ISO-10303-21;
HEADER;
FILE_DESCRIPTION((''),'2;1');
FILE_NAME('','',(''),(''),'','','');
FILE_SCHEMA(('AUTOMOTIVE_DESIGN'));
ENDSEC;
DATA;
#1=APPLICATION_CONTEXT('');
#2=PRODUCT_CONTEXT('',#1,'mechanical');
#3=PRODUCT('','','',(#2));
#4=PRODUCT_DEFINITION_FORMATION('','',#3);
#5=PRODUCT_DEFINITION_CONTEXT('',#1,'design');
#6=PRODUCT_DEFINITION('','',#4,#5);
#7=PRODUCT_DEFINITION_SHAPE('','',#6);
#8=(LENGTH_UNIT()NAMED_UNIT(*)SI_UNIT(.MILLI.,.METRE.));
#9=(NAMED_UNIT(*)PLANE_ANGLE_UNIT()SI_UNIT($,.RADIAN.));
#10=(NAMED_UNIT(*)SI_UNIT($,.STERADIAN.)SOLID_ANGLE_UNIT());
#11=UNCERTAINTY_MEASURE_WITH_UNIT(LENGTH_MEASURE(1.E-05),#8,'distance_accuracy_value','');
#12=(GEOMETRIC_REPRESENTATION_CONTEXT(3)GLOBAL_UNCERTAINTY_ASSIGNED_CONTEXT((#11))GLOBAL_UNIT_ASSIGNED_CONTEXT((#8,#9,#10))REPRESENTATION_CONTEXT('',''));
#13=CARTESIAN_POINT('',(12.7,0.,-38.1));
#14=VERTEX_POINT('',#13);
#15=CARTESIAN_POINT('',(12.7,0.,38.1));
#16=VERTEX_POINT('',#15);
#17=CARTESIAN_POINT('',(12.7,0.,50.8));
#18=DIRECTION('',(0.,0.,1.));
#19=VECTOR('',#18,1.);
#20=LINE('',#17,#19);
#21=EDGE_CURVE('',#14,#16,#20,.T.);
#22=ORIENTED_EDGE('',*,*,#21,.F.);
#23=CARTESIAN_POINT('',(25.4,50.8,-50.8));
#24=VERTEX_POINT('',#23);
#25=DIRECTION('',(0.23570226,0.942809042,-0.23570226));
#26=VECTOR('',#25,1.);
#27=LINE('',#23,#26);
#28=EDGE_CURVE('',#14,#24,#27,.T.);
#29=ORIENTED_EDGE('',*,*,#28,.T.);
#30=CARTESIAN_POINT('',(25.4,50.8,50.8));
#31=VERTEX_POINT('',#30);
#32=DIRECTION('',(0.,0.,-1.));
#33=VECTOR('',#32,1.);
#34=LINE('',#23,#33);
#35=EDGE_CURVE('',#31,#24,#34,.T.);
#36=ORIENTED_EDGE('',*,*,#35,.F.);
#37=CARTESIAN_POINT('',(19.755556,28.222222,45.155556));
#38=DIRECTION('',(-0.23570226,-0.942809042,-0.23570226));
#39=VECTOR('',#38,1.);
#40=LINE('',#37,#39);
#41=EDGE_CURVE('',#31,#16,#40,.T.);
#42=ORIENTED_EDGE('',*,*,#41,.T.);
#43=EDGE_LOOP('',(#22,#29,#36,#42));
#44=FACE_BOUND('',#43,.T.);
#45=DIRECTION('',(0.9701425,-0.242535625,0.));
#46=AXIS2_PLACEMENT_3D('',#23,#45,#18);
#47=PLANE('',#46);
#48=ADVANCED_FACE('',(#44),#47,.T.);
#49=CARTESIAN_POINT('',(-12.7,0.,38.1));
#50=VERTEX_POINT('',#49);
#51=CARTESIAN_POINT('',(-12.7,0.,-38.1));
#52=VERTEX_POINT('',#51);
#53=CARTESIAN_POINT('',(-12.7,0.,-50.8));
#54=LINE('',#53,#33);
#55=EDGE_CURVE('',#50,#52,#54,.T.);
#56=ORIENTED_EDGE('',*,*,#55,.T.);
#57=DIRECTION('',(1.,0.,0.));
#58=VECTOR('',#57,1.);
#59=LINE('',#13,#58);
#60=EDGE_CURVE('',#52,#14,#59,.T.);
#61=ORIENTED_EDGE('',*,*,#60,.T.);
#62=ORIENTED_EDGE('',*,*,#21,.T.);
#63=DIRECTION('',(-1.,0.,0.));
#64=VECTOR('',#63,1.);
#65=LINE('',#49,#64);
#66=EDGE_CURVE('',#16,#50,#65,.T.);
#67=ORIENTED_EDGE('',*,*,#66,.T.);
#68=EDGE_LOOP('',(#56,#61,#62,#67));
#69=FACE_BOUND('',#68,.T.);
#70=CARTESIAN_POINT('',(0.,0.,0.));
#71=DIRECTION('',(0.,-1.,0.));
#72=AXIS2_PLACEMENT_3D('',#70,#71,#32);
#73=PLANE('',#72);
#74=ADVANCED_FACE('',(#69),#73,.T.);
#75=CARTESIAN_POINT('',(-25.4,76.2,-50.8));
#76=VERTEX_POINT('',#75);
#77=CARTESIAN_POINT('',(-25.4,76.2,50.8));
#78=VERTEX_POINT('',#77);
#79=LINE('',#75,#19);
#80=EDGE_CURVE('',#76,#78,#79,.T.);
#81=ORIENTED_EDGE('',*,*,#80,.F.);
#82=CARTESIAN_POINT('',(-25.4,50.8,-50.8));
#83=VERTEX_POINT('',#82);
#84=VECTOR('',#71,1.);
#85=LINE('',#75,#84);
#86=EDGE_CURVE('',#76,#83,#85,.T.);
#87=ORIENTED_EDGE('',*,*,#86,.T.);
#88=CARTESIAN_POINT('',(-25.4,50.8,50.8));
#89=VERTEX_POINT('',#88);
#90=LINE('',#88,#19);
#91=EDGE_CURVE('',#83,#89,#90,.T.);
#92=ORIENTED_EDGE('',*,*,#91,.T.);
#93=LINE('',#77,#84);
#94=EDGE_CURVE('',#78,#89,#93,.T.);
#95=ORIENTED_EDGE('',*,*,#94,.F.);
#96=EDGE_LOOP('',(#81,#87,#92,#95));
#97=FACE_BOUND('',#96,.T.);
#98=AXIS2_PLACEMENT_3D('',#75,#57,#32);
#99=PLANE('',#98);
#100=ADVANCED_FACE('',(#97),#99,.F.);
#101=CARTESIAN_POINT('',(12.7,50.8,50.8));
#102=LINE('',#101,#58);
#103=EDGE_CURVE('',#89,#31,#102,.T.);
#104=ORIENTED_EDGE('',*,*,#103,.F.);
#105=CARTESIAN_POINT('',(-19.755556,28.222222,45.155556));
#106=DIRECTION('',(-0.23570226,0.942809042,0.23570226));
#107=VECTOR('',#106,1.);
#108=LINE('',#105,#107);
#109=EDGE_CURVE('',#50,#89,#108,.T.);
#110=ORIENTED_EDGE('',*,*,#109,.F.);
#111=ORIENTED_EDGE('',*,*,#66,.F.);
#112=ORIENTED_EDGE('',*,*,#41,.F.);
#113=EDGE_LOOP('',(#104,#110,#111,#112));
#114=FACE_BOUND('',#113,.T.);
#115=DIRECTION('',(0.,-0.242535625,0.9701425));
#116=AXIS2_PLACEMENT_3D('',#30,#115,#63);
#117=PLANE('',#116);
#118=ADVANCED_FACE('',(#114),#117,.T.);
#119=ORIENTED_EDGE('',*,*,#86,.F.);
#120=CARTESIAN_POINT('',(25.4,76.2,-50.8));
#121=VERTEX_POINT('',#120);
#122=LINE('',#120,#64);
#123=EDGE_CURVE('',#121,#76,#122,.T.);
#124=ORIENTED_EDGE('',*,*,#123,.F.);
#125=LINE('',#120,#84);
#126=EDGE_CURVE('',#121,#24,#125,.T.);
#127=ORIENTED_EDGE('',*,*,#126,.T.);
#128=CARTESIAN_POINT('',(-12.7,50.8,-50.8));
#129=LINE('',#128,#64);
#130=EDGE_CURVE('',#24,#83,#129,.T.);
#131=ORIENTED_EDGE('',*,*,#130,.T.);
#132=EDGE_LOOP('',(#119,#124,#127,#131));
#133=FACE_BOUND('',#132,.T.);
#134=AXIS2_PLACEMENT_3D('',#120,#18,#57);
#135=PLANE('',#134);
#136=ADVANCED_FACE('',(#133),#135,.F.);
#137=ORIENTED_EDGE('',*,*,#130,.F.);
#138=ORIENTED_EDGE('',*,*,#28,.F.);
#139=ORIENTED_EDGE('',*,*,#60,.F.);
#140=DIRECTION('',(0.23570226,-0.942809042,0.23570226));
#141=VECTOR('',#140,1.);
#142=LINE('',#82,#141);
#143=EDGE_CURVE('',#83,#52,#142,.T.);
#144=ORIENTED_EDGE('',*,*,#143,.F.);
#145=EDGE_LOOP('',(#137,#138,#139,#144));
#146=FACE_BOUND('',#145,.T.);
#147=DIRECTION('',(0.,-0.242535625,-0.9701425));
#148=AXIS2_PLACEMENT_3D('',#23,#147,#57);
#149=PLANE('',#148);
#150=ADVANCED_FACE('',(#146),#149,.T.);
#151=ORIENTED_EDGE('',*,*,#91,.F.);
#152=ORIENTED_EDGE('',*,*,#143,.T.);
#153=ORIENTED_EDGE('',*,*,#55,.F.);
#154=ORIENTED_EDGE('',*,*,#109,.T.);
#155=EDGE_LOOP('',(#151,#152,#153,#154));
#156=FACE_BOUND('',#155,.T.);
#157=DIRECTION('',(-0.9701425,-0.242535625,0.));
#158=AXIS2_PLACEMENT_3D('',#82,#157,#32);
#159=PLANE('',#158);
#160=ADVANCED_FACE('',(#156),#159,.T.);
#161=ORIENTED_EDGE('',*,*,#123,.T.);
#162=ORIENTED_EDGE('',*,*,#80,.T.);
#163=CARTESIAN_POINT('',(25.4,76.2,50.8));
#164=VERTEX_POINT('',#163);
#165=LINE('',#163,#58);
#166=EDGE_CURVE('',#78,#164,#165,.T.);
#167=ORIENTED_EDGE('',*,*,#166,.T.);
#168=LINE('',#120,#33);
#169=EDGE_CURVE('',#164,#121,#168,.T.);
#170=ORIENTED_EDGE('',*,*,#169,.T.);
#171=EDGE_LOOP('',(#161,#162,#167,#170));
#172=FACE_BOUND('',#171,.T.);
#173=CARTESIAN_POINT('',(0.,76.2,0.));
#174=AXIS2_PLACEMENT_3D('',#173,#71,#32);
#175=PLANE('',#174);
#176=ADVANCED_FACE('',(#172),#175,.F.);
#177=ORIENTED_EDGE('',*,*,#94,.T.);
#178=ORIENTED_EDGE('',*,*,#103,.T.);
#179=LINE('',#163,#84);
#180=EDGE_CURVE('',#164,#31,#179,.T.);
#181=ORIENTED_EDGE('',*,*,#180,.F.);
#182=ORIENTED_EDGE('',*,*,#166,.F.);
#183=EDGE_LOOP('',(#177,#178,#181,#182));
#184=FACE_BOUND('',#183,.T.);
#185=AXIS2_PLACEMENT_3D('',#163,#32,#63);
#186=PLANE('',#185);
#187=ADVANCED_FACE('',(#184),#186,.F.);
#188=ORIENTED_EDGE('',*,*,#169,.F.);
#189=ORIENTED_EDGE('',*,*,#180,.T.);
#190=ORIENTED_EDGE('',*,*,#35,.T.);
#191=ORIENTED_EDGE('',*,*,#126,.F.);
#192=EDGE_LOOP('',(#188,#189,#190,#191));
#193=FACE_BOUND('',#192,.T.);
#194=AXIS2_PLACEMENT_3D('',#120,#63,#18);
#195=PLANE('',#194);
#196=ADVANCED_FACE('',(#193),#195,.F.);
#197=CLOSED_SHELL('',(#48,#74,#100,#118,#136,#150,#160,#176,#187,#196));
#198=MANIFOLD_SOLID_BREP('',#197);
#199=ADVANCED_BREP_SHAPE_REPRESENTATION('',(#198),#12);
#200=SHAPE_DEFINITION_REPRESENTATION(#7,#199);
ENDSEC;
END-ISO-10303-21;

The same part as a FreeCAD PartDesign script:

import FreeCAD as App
import Part
import Sketcher

V = App.Vector
Q = App.Units.Quantity


def edges_at(feature, points):
    """Names of the edges that pass closest to the given points."""
    edges = feature.Shape.Edges
    near = lambda p: min(range(len(edges)), key=lambda i: edges[i].distToShape(Part.Vertex(*p))[0])
    return sorted({f"Edge{near(p) + 1}" for p in points})


def add_polygon(sketch, points):
    """Adds a closed chain of lines whose ends are joined by coincident constraints."""
    first, n = sketch.GeometryCount, len(points)
    for a, b in zip(points, points[1:] + points[:1]):
        sketch.addGeometry(Part.LineSegment(App.Vector(*a, 0), App.Vector(*b, 0)), False)
    for i in range(n):
        sketch.addConstraint(Sketcher.Constraint("Coincident", first + i, 2, first + (i + 1) % n, 1))

doc = App.newDocument("Part")
body = doc.addObject("PartDesign::Body", "Body")

# Sketch on XZ plane
sketch1 = doc.addObject("Sketcher::SketchObject", "Sketch")
body.addObject(sketch1)
sketch1.AttachmentSupport = (doc.XZ_Plane, [""])
sketch1.MapMode = "FlatFace"
add_polygon(sketch1, [(-25, -51), (-25, 51), (25, 51), (25, -51)])  # lines 0-3
sketch1.addConstraint(Sketcher.Constraint("Vertical", 0))
sketch1.addConstraint(Sketcher.Constraint("Horizontal", 1))
sketch1.addConstraint(Sketcher.Constraint("Vertical", 2))
sketch1.addConstraint(Sketcher.Constraint("Horizontal", 3))
sketch1.addConstraint(Sketcher.Constraint("Symmetric", 0, 2, 2, 2, -1, 1))
sketch1.addConstraint(Sketcher.Constraint("DistanceX", 1, 1, 1, 2, Q("2 in")))
sketch1.addConstraint(Sketcher.Constraint("DistanceY", 0, 1, 0, 2, Q("4 in")))
pad1 = doc.addObject("PartDesign::Pad", "Pad")
body.addObject(pad1)
pad1.Profile = sketch1
pad1.Length = Q("3 in")
pad1.Reversed = True
doc.recompute()

chamfer = doc.addObject("PartDesign::Chamfer", "Chamfer")
body.addObject(chamfer)
chamfer.Base = (pad1, edges_at(pad1, [(25.4, 0, 0)]))
chamfer.ChamferType = "Two distances"
chamfer.Size = Q("0.5 in")
chamfer.Size2 = Q("2 in")
chamfer.FlipDirection = True
doc.recompute()

chamfer2 = doc.addObject("PartDesign::Chamfer", "Chamfer001")
body.addObject(chamfer2)
chamfer2.Base = (chamfer, edges_at(chamfer, [(-25.4, 0, 0)]))
chamfer2.ChamferType = "Two distances"
chamfer2.Size = Q("0.5 in")
chamfer2.Size2 = Q("2 in")
doc.recompute()

chamfer3 = doc.addObject("PartDesign::Chamfer", "Chamfer002")
body.addObject(chamfer3)
chamfer3.Base = (chamfer2, edges_at(chamfer2, [(0, 0, 50.8)]))
chamfer3.ChamferType = "Two distances"
chamfer3.Size = Q("0.5 in")
chamfer3.Size2 = Q("2 in")
chamfer3.FlipDirection = True
doc.recompute()

chamfer4 = doc.addObject("PartDesign::Chamfer", "Chamfer003")
body.addObject(chamfer4)
chamfer4.Base = (chamfer3, edges_at(chamfer3, [(0, 0, -50.8)]))
chamfer4.ChamferType = "Two distances"
chamfer4.Size = Q("0.5 in")
chamfer4.Size2 = Q("2 in")

doc.recompute()
